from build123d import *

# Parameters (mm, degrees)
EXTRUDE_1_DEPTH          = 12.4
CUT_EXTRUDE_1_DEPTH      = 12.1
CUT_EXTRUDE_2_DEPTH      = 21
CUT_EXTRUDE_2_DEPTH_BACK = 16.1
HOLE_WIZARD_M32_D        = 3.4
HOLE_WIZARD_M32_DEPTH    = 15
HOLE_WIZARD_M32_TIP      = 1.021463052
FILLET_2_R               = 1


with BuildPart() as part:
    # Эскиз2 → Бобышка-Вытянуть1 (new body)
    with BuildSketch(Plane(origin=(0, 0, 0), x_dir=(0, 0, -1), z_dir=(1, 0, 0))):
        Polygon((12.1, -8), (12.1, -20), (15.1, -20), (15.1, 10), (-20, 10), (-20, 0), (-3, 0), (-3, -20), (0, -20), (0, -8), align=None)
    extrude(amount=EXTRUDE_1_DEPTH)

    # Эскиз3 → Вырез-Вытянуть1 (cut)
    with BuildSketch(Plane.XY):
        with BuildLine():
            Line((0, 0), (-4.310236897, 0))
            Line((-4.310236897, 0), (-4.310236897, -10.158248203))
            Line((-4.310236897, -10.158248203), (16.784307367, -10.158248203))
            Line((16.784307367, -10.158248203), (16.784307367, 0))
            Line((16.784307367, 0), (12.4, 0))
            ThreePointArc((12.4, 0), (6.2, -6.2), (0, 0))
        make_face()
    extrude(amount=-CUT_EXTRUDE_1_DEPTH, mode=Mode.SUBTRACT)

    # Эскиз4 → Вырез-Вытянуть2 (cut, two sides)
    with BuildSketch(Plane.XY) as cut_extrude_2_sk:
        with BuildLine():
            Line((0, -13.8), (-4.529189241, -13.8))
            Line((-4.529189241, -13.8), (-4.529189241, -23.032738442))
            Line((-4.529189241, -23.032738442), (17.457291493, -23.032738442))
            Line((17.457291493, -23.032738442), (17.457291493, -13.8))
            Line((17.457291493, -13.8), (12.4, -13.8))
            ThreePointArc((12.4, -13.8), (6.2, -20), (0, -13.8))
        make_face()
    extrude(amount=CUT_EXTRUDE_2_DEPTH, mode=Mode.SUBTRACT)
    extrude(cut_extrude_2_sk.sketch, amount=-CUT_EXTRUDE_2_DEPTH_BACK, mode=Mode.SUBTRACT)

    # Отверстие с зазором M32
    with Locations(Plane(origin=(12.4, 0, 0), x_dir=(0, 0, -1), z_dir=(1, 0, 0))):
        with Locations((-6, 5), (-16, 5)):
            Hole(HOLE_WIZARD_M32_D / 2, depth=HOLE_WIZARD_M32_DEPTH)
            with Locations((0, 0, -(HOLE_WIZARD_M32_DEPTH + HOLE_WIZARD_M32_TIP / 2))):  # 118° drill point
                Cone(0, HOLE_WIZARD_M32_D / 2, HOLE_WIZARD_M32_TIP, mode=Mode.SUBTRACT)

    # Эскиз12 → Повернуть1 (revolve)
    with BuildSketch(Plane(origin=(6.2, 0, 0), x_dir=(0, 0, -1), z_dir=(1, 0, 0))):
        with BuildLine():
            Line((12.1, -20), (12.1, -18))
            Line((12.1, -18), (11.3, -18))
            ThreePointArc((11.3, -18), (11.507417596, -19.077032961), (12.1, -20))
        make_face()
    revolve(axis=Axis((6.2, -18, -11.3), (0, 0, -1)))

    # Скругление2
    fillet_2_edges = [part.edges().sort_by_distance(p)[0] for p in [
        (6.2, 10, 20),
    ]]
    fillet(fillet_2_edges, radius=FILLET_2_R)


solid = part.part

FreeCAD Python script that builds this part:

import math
import FreeCAD as App
import Part
import Sketcher


def edges_at(feature, points):
    """Names of the edges that pass closest to the given points."""
    edges = feature.Shape.Edges
    near = lambda p: min(range(len(edges)), key=lambda i: edges[i].distToShape(Part.Vertex(*p))[0])
    return sorted({f"Edge{near(p) + 1}" for p in points})


def add_polygon(sketch, points):
    """Adds a closed chain of lines whose ends are joined by coincident constraints."""
    first, n = sketch.GeometryCount, len(points)
    for a, b in zip(points, points[1:] + points[:1]):
        sketch.addGeometry(Part.LineSegment(App.Vector(*a, 0), App.Vector(*b, 0)), False)
    for i in range(n):
        sketch.addConstraint(Sketcher.Constraint("Coincident", first + i, 2, first + (i + 1) % n, 1))

doc = App.newDocument("Part")
params = doc.addObject("Spreadsheet::Sheet", "Params")
for row, (alias, value) in enumerate([
    ("sketch1_width", "12 mm"),
    ("sketch1_width2", "30 mm"),
    ("sketch1_width3", "10 mm"),
    ("sketch1_height", "3 mm"),
    ("sketch1_height2", "17 mm"),
    ("pad1_length", "12.4 mm"),
    ("sketch2_radius", "6.2 mm"),
    ("pocket1_length", "12.1 mm"),
    ("sketch3_radius", "6.2 mm"),
    ("sketch4_diameter", "3.4 mm"),
    ("hole_diameter", "3.4 mm"),
    ("hole_depth", "15 mm"),
    ("sketch5_radius", "2.9 mm"),
    ("sketch5_width", "2 mm"),
    ("revolution_angle", "360 deg"),
    ("fillet_radius", "1 mm"),
], start=1):
    params.set(f"A{row}", alias)
    params.set(f"B{row}", "=" + value)
    params.setAlias(f"B{row}", alias)

body = doc.addObject("PartDesign::Body", "Body")

sketch1 = body.newObject("Sketcher::SketchObject", "Sketch")
sketch1.AttachmentSupport = (doc.getObject("YZ_Plane"), [""])
sketch1.MapMode = "FlatFace"
add_polygon(sketch1, [(-8, -12.1), (-20, -12.1), (-20, -15.1), (10, -15.1), (10, 20), (0, 20), (0, 3), (-20, 3), (-20, 0), (-8, 0)])
sketch1.addConstraint([
    Sketcher.Constraint("Horizontal", 0),
    Sketcher.Constraint("Vertical", 1),
    Sketcher.Constraint("Horizontal", 2),
    Sketcher.Constraint("Vertical", 3),
    Sketcher.Constraint("Horizontal", 4),
    Sketcher.Constraint("Vertical", 5),
    Sketcher.Constraint("Horizontal", 6),
    Sketcher.Constraint("Vertical", 7),
    Sketcher.Constraint("Horizontal", 8),
    Sketcher.Constraint("Vertical", 9),
    Sketcher.Constraint("PointOnObject", 4, 2, -2),
    Sketcher.Constraint("PointOnObject", 7, 2, -1),
    Sketcher.Constraint("Vertical", 1, 2, 6, 2),
    Sketcher.Constraint("Equal", 1, 7),
    Sketcher.Constraint("DistanceX", 0, 2, 0, 1, 12.0),
    Sketcher.Constraint("DistanceX", 2, 1, 2, 2, 30.0),
    Sketcher.Constraint("DistanceX", 4, 2, 4, 1, 10.0),
    Sketcher.Constraint("DistanceY", 1, 2, 1, 1, 3.0),
    Sketcher.Constraint("DistanceY", 5, 2, 5, 1, 17.0),
    Sketcher.Constraint("DistanceY", 3, 1, 3, 2, 35.1),
])
sketch1.setExpression("Constraints[24]", "Params.sketch1_width")
sketch1.setExpression("Constraints[25]", "Params.sketch1_width2")
sketch1.setExpression("Constraints[26]", "Params.sketch1_width3")
sketch1.setExpression("Constraints[27]", "Params.sketch1_height")
sketch1.setExpression("Constraints[28]", "Params.sketch1_height2")
pad1 = body.newObject("PartDesign::Pad", "Pad")
pad1.Profile = sketch1
pad1.setExpression("Length", "Params.pad1_length")

sketch2 = body.newObject("Sketcher::SketchObject", "Sketch001")
sketch2.AttachmentSupport = (doc.getObject("XY_Plane"), [""])
sketch2.MapMode = "FlatFace"
sketch2.addGeometry([
    Part.LineSegment(App.Vector(0, 0, 0), App.Vector(-4.3, 0, 0)),
    Part.LineSegment(App.Vector(-4.3, 0, 0), App.Vector(-4.3, -10.2, 0)),
    Part.LineSegment(App.Vector(-4.3, -10.2, 0), App.Vector(16.8, -10.2, 0)),
    Part.LineSegment(App.Vector(16.8, -10.2, 0), App.Vector(16.8, 0, 0)),
    Part.LineSegment(App.Vector(16.8, 0, 0), App.Vector(12.4, 0, 0)),
    Part.ArcOfCircle(Part.Circle(App.Vector(6.2, 0, 0), App.Vector(0, 0, 1), 6.2), math.radians(180), math.radians(360)),
], False)
sketch2.addConstraint([
    Sketcher.Constraint("Coincident", 0, 2, 1, 1),
    Sketcher.Constraint("Coincident", 1, 2, 2, 1),
    Sketcher.Constraint("Coincident", 2, 2, 3, 1),
    Sketcher.Constraint("Coincident", 3, 2, 4, 1),
    Sketcher.Constraint("Coincident", 4, 2, 5, 2),
    Sketcher.Constraint("Coincident", 5, 1, 0, 1),
    Sketcher.Constraint("Horizontal", 0),
    Sketcher.Constraint("Vertical", 1),
    Sketcher.Constraint("Horizontal", 2),
    Sketcher.Constraint("Vertical", 3),
    Sketcher.Constraint("Horizontal", 4),
    Sketcher.Constraint("Coincident", 5, 1, -1, 1),
    Sketcher.Constraint("PointOnObject", 5, 3, -1),
    Sketcher.Constraint("PointOnObject", 3, 2, -1),
    Sketcher.Constraint("Radius", 5, 6.2),
    Sketcher.Constraint("DistanceY", 1, 2, 1, 1, 10.158248),
    Sketcher.Constraint("DistanceX", 0, 2, 0, 1, 4.310237),
    Sketcher.Constraint("DistanceX", 2, 1, 2, 2, 21.094544),
])
sketch2.setExpression("Constraints[14]", "Params.sketch2_radius")
pocket1 = body.newObject("PartDesign::Pocket", "Pocket")
pocket1.Profile = sketch2
pocket1.setExpression("Length", "Params.pocket1_length")

sketch3 = body.newObject("Sketcher::SketchObject", "Sketch002")
sketch3.AttachmentSupport = (doc.getObject("XY_Plane"), [""])
sketch3.MapMode = "FlatFace"
sketch3.addGeometry([
    Part.LineSegment(App.Vector(0, -13.8, 0), App.Vector(-4.5, -13.8, 0)),
    Part.LineSegment(App.Vector(-4.5, -13.8, 0), App.Vector(-4.5, -23, 0)),
    Part.LineSegment(App.Vector(-4.5, -23, 0), App.Vector(17.5, -23, 0)),
    Part.LineSegment(App.Vector(17.5, -23, 0), App.Vector(17.5, -13.8, 0)),
    Part.LineSegment(App.Vector(17.5, -13.8, 0), App.Vector(12.4, -13.8, 0)),
    Part.ArcOfCircle(Part.Circle(App.Vector(6.2, -13.8, 0), App.Vector(0, 0, 1), 6.2), math.radians(180), math.radians(360)),
], False)
sketch3.addConstraint([
    Sketcher.Constraint("Coincident", 0, 2, 1, 1),
    Sketcher.Constraint("Coincident", 1, 2, 2, 1),
    Sketcher.Constraint("Coincident", 2, 2, 3, 1),
    Sketcher.Constraint("Coincident", 3, 2, 4, 1),
    Sketcher.Constraint("Coincident", 4, 2, 5, 2),
    Sketcher.Constraint("Coincident", 5, 1, 0, 1),
    Sketcher.Constraint("Horizontal", 0),
    Sketcher.Constraint("Vertical", 1),
    Sketcher.Constraint("Horizontal", 2),
    Sketcher.Constraint("Vertical", 3),
    Sketcher.Constraint("Horizontal", 4),
    Sketcher.Constraint("PointOnObject", 5, 1, -2),
    Sketcher.Constraint("Horizontal", 5, 3, 0, 2),
    Sketcher.Constraint("Horizontal", 0, 2, 3, 2),
    Sketcher.Constraint("Radius", 5, 6.2),
    Sketcher.Constraint("DistanceY", 5, 3, -1, 1, 13.8),
    Sketcher.Constraint("DistanceX", 0, 2, 0, 1, 4.529189),
    Sketcher.Constraint("DistanceX", 2, 1, 2, 2, 21.986481),
    Sketcher.Constraint("DistanceY", 1, 2, 1, 1, 9.232738),
])
sketch3.setExpression("Constraints[14]", "Params.sketch3_radius")
pocket2 = body.newObject("PartDesign::Pocket", "Pocket001")
pocket2.Profile = sketch3
pocket2.Type = "ThroughAll"
pocket2.Midplane = True

sketch4 = body.newObject("Sketcher::SketchObject", "Sketch003")
sketch4.AttachmentSupport = (doc.getObject("YZ_Plane"), [""])
sketch4.MapMode = "FlatFace"
sketch4.AttachmentOffset = App.Placement(App.Vector(0, 0, 12.4), App.Rotation())
sketch4.addGeometry([
    Part.Circle(App.Vector(5, 6, 0), App.Vector(0, 0, 1), 1.7),
    Part.Circle(App.Vector(5, 16, 0), App.Vector(0, 0, 1), 1.7),
], False)
sketch4.addConstraint([
    Sketcher.Constraint("Equal", 0, 1),
    Sketcher.Constraint("Vertical", 0, 3, 1, 3),
    Sketcher.Constraint("Diameter", 0, 3.4),
    Sketcher.Constraint("DistanceX", -1, 1, 0, 3, 5.0),
    Sketcher.Constraint("DistanceY", -1, 1, 0, 3, 6.0),
    Sketcher.Constraint("DistanceY", -1, 1, 1, 3, 16.0),
])
sketch4.setExpression("Constraints[2]", "Params.sketch4_diameter")
doc.recompute()
hole = body.newObject("PartDesign::Hole", "Hole")
hole.Profile = sketch4
hole.ThreadType = "None"
hole.setExpression("Diameter", "Params.hole_diameter")
hole.DepthType = "Dimension"
hole.setExpression("Depth", "Params.hole_depth")
hole.DrillPoint = "Angled"
hole.DrillPointAngle = 118

sketch5 = body.newObject("Sketcher::SketchObject", "Sketch004")
sketch5.AttachmentSupport = (doc.getObject("YZ_Plane"), [""])
sketch5.MapMode = "FlatFace"
sketch5.AttachmentOffset = App.Placement(App.Vector(0, 0, 6.2), App.Rotation())
sketch5.addGeometry([
    Part.LineSegment(App.Vector(-20, -12.1, 0), App.Vector(-18, -12.1, 0)),
    Part.LineSegment(App.Vector(-18, -12.1, 0), App.Vector(-18, -11.3, 0)),
    Part.ArcOfCircle(Part.Circle(App.Vector(-18, -14.2, 0), App.Vector(0, 0, 1), 2.9), math.radians(90), math.radians(134)),
], False)
sketch5.addGeometry(Part.LineSegment(App.Vector(-18, -11.3, 0), App.Vector(-18, -14.2, 0)), True)
sketch5.addConstraint([
    Sketcher.Constraint("Coincident", 0, 2, 1, 1),
    Sketcher.Constraint("Coincident", 1, 2, 2, 1),
    Sketcher.Constraint("Coincident", 2, 2, 0, 1),
    Sketcher.Constraint("Horizontal", 0),
    Sketcher.Constraint("Vertical", 1),
    Sketcher.Constraint("Vertical", 3),
    Sketcher.Constraint("Coincident", 3, 1, 1, 2),
    Sketcher.Constraint("Coincident", 3, 2, 2, 3),
    Sketcher.Constraint("Radius", 2, 2.9),
    Sketcher.Constraint("DistanceX", 0, 1, 0, 2, 2.0),
    Sketcher.Constraint("DistanceX", 2, 3, -1, 1, 18.0),
    Sketcher.Constraint("DistanceY", 2, 3, -1, 1, 14.2),
])
sketch5.setExpression("Constraints[8]", "Params.sketch5_radius")
sketch5.setExpression("Constraints[9]", "Params.sketch5_width")
revolution = body.newObject("PartDesign::Revolution", "Revolution")
revolution.Profile = sketch5
revolution.ReferenceAxis = (sketch5, ["Axis0"])
revolution.setExpression("Angle", "Params.revolution_angle")
doc.recompute()

fillet = body.newObject("PartDesign::Fillet", "Fillet")
fillet.Base = (revolution, edges_at(revolution, [(6.2, 10, 20)]))
fillet.setExpression("Radius", "Params.fillet_radius")

doc.recompute()
